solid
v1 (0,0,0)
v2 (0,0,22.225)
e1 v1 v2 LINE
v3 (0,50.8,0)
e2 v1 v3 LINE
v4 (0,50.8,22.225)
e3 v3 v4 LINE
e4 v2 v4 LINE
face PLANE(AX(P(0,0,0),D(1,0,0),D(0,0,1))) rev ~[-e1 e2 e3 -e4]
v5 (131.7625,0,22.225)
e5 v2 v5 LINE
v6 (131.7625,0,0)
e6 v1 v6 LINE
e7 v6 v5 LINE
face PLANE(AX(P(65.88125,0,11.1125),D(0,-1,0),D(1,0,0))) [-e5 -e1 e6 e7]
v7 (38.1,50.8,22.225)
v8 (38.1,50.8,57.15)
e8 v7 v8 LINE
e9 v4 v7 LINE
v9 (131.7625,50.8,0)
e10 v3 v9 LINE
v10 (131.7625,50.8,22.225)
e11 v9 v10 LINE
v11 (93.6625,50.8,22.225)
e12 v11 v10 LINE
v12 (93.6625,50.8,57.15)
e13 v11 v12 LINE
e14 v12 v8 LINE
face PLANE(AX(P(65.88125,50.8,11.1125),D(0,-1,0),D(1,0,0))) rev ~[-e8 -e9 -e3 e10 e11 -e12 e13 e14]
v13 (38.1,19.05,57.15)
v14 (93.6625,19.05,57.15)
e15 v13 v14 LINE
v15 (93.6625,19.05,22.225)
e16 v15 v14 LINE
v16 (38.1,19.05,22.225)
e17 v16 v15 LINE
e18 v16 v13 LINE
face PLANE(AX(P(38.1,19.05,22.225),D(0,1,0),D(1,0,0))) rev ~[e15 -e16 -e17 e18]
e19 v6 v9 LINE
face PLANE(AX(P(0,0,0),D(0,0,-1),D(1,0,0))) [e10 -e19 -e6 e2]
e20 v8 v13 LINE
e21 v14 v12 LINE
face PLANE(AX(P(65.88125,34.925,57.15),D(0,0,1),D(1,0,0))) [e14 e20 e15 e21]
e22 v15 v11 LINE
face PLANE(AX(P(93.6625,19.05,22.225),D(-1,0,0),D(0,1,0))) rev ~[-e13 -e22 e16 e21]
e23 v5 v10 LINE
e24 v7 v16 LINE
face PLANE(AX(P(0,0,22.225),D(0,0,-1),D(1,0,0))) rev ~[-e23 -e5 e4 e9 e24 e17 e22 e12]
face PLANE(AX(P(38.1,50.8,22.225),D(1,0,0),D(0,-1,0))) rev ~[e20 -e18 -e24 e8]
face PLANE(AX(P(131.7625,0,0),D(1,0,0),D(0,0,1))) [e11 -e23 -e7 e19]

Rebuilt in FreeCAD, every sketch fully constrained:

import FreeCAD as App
import Part
import Sketcher
from FreeCAD import Vector
Q = App.Units.Quantity

doc = App.newDocument("Part")
params = doc.addObject("Spreadsheet::Sheet", "Params")
for row, (alias, value) in enumerate([
    ("sketch1_width", "5.1875 in"),
    ("sketch1_height", "0.875 in"),
    ("pad1_length", "2 in"),
    ("sketch2_height", "1.25 in"),
    ("sketch2_width", "2.1875 in"),
    ("pad2_length", "1.375 in"),
], start=1):
    params.set(f"A{row}", alias)
    params.set(f"B{row}", "=" + value)
    params.setAlias(f"B{row}", alias)

body = doc.addObject("PartDesign::Body", "Body")

# Sketch on XZ plane
sketch1 = body.newObject("Sketcher::SketchObject", "Sketch")
sketch1.AttachmentSupport = (doc.getObject("XZ_Plane"), [""])
sketch1.MapMode = "FlatFace"
sketch1.addGeometry(Part.LineSegment(Vector(0, 22, 0), Vector(0, 0, 0)), False)
sketch1.addGeometry(Part.LineSegment(Vector(0, 0, 0), Vector(132, 0, 0)), False)
sketch1.addGeometry(Part.LineSegment(Vector(132, 0, 0), Vector(132, 22, 0)), False)
sketch1.addGeometry(Part.LineSegment(Vector(132, 22, 0), Vector(0, 22, 0)), False)
sketch1.addConstraint(Sketcher.Constraint("Coincident", 0, 2, 1, 1))
sketch1.addConstraint(Sketcher.Constraint("Coincident", 1, 2, 2, 1))
sketch1.addConstraint(Sketcher.Constraint("Coincident", 2, 2, 3, 1))
sketch1.addConstraint(Sketcher.Constraint("Coincident", 3, 2, 0, 1))
sketch1.addConstraint(Sketcher.Constraint("Vertical", 0))
sketch1.addConstraint(Sketcher.Constraint("Horizontal", 1))
sketch1.addConstraint(Sketcher.Constraint("Vertical", 2))
sketch1.addConstraint(Sketcher.Constraint("Horizontal", 3))
sketch1.addConstraint(Sketcher.Constraint("Coincident", 0, 2, -1, 1))
sketch1.addConstraint(Sketcher.Constraint("DistanceX", 1, 1, 1, 2, Q("5.1875 in")))
sketch1.addConstraint(Sketcher.Constraint("DistanceY", 0, 2, 0, 1, Q("0.875 in")))
sketch1.setExpression("Constraints[9]", "Params.sketch1_width")
sketch1.setExpression("Constraints[10]", "Params.sketch1_height")
pad1 = body.newObject("PartDesign::Pad", "Pad")
pad1.Profile = sketch1
pad1.setExpression("Length", "Params.pad1_length")
pad1.Reversed = True

# Sketch on XY plane
sketch2 = body.newObject("Sketcher::SketchObject", "Sketch001")
sketch2.AttachmentSupport = (doc.getObject("XY_Plane"), [""])
sketch2.MapMode = "FlatFace"
sketch2.AttachmentOffset = App.Placement(Vector(0, 0, 0.875 * 25.4), App.Rotation())
sketch2.addGeometry(Part.LineSegment(Vector(38, 51, 0), Vector(38, 19, 0)), False)
sketch2.addGeometry(Part.LineSegment(Vector(38, 19, 0), Vector(94, 19, 0)), False)
sketch2.addGeometry(Part.LineSegment(Vector(94, 19, 0), Vector(94, 51, 0)), False)
sketch2.addGeometry(Part.LineSegment(Vector(94, 51, 0), Vector(38, 51, 0)), False)
sketch2.addConstraint(Sketcher.Constraint("Coincident", 0, 2, 1, 1))
sketch2.addConstraint(Sketcher.Constraint("Coincident", 1, 2, 2, 1))
sketch2.addConstraint(Sketcher.Constraint("Coincident", 2, 2, 3, 1))
sketch2.addConstraint(Sketcher.Constraint("Coincident", 3, 2, 0, 1))
sketch2.addConstraint(Sketcher.Constraint("Vertical", 0))
sketch2.addConstraint(Sketcher.Constraint("Horizontal", 1))
sketch2.addConstraint(Sketcher.Constraint("Vertical", 2))
sketch2.addConstraint(Sketcher.Constraint("Horizontal", 3))
sketch2.addConstraint(Sketcher.Constraint("DistanceY", -1, 1, 2, 2, Q("2 in")))
sketch2.addConstraint(Sketcher.Constraint("DistanceY", 0, 2, 0, 1, Q("1.25 in")))
sketch2.addConstraint(Sketcher.Constraint("DistanceX", -1, 1, 0, 2, Q("1.5 in")))
sketch2.addConstraint(Sketcher.Constraint("DistanceX", 1, 1, 1, 2, Q("2.1875 in")))
sketch2.setExpression("Constraints[9]", "Params.sketch2_height")
sketch2.setExpression("Constraints[11]", "Params.sketch2_width")
pad2 = body.newObject("PartDesign::Pad", "Pad001")
pad2.Profile = sketch2
pad2.setExpression("Length", "Params.pad2_length")

doc.recompute()
